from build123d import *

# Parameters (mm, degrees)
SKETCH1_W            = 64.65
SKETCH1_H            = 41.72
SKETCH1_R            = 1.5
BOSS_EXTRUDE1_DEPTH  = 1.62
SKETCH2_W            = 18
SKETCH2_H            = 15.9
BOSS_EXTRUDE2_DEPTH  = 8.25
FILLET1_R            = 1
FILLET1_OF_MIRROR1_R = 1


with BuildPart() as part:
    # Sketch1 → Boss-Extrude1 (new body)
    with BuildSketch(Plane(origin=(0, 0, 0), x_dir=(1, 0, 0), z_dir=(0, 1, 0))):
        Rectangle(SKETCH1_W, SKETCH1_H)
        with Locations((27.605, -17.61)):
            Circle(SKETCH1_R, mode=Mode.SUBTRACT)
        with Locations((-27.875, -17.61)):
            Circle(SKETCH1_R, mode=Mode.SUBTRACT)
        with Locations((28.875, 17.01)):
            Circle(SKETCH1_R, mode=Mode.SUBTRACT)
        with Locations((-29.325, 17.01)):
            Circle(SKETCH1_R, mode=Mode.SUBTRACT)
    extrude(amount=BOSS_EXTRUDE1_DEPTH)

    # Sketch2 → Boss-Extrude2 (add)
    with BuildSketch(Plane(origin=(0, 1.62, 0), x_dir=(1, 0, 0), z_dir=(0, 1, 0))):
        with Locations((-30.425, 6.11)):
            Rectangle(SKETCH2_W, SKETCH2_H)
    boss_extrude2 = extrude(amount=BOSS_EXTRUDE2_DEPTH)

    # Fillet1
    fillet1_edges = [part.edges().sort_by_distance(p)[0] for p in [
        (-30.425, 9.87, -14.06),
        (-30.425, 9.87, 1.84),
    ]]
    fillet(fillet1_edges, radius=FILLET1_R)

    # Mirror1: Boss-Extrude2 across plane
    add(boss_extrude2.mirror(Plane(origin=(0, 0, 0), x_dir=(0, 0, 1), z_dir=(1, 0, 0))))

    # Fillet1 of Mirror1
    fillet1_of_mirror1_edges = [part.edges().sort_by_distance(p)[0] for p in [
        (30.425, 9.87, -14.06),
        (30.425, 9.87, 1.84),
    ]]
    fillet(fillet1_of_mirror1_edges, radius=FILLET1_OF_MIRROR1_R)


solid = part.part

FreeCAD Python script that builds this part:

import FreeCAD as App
import Part
import Sketcher

V = App.Vector
Q = App.Units.Quantity


def edges_at(feature, points):
    """Names of the edges that pass closest to the given points."""
    edges = feature.Shape.Edges
    near = lambda p: min(range(len(edges)), key=lambda i: edges[i].distToShape(Part.Vertex(*p))[0])
    return sorted({f"Edge{near(p) + 1}" for p in points})

doc = App.newDocument("Part")
params = doc.addObject("Spreadsheet::Sheet", "Params")
for row, (alias, value) in enumerate([
    ("sketch1_diameter", "3 mm"),
    ("sketch1_width", "64.65 mm"),
    ("sketch1_height", "41.72 mm"),
    ("pad1_length", "1.62 mm"),
    ("sketch2_width", "18 mm"),
    ("sketch2_height", "15.9 mm"),
    ("pad2_length", "8.25 mm"),
    ("fillet_radius", "1 mm"),
    ("fillet2_radius", "1 mm"),
], start=1):
    params.set(f"A{row}", alias)
    params.set(f"B{row}", "=" + value)
    params.setAlias(f"B{row}", alias)

body = doc.addObject("PartDesign::Body", "Body")

sketch1 = body.newObject("Sketcher::SketchObject", "Sketch")
sketch1.AttachmentSupport = (doc.getObject("XZ_Plane"), [""])
sketch1.MapMode = "FlatFace"
sketch1.addGeometry([
    Part.LineSegment(V(-32.3, -20.9, 0), V(-32.3, 20.9, 0)),
    Part.LineSegment(V(-32.3, 20.9, 0), V(32.3, 20.9, 0)),
    Part.LineSegment(V(32.3, 20.9, 0), V(32.3, -20.9, 0)),
    Part.LineSegment(V(32.3, -20.9, 0), V(-32.3, -20.9, 0)),
    Part.Circle(V(-27.9, 17.6, 0), V(0, 0, 1), 1.5),
    Part.Circle(V(27.6, 17.6, 0), V(0, 0, 1), 1.5),
    Part.Circle(V(-29.3, -17, 0), V(0, 0, 1), 1.5),
    Part.Circle(V(28.9, -17, 0), V(0, 0, 1), 1.5),
], False)
sketch1.addConstraint([
    Sketcher.Constraint("Coincident", 0, 2, 1, 1),
    Sketcher.Constraint("Coincident", 1, 2, 2, 1),
    Sketcher.Constraint("Coincident", 2, 2, 3, 1),
    Sketcher.Constraint("Coincident", 3, 2, 0, 1),
    Sketcher.Constraint("Vertical", 0),
    Sketcher.Constraint("Horizontal", 1),
    Sketcher.Constraint("Vertical", 2),
    Sketcher.Constraint("Horizontal", 3),
    Sketcher.Constraint("Equal", 4, 5),
    Sketcher.Constraint("Equal", 5, 6),
    Sketcher.Constraint("Equal", 6, 7),
    Sketcher.Constraint("Symmetric", 0, 2, 2, 2, -1, 1),
    Sketcher.Constraint("Horizontal", 4, 3, 5, 3),
    Sketcher.Constraint("Horizontal", 6, 3, 7, 3),
    Sketcher.Constraint("Diameter", 4, Q("3 mm")),
    Sketcher.Constraint("DistanceX", 0, 2, 6, 3, Q("3 mm")),
    Sketcher.Constraint("DistanceX", 1, 1, 1, 2, Q("64.65 mm")),
    Sketcher.Constraint("DistanceY", 0, 1, 0, 2, Q("41.72 mm")),
    Sketcher.Constraint("DistanceX", 6, 3, 7, 3, Q("58.2 mm")),
    Sketcher.Constraint("DistanceX", 4, 3, 1, 2, Q("60.2 mm")),
    Sketcher.Constraint("DistanceY", -1, 1, 4, 3, Q("17.61 mm")),
    Sketcher.Constraint("DistanceY", 6, 3, -1, 1, Q("17.01 mm")),
    Sketcher.Constraint("DistanceX", 4, 3, 5, 3, Q("55.48 mm")),
])
sketch1.setExpression("Constraints[14]", "Params.sketch1_diameter")
sketch1.setExpression("Constraints[16]", "Params.sketch1_width")
sketch1.setExpression("Constraints[17]", "Params.sketch1_height")
pad1 = body.newObject("PartDesign::Pad", "Pad")
pad1.Profile = sketch1
pad1.setExpression("Length", "Params.pad1_length")
pad1.Reversed = True

sketch2 = body.newObject("Sketcher::SketchObject", "Sketch001")
sketch2.AttachmentSupport = (doc.getObject("XZ_Plane"), [""])
sketch2.MapMode = "FlatFace"
sketch2.AttachmentOffset = App.Placement(V(0, 0, -1.62), App.Rotation())
sketch2.addGeometry([
    Part.LineSegment(V(-39, -14, 0), V(-39, 2, 0)),
    Part.LineSegment(V(-39, 2, 0), V(-21, 2, 0)),
    Part.LineSegment(V(-21, 2, 0), V(-21, -14, 0)),
    Part.LineSegment(V(-21, -14, 0), V(-39, -14, 0)),
], False)
sketch2.addConstraint([
    Sketcher.Constraint("Coincident", 0, 2, 1, 1),
    Sketcher.Constraint("Coincident", 1, 2, 2, 1),
    Sketcher.Constraint("Coincident", 2, 2, 3, 1),
    Sketcher.Constraint("Coincident", 3, 2, 0, 1),
    Sketcher.Constraint("Vertical", 0),
    Sketcher.Constraint("Horizontal", 1),
    Sketcher.Constraint("Vertical", 2),
    Sketcher.Constraint("Horizontal", 3),
    Sketcher.Constraint("DistanceX", 1, 1, 1, 2, Q("18 mm")),
    Sketcher.Constraint("DistanceY", 0, 1, 0, 2, Q("15.9 mm")),
    Sketcher.Constraint("DistanceY", -1, 1, 0, 2, Q("1.84 mm")),
    Sketcher.Constraint("DistanceX", 0, 2, -1, 1, Q("39.425 mm")),
])
sketch2.setExpression("Constraints[8]", "Params.sketch2_width")
sketch2.setExpression("Constraints[9]", "Params.sketch2_height")
pad2 = body.newObject("PartDesign::Pad", "Pad001")
pad2.Profile = sketch2
pad2.setExpression("Length", "Params.pad2_length")
pad2.Reversed = True
doc.recompute()

fillet = body.newObject("PartDesign::Fillet", "Fillet")
fillet.Base = (pad2, edges_at(pad2, [(-30.425, 9.87, -14.06), (-30.425, 9.87, 1.84)]))
fillet.setExpression("Radius", "Params.fillet_radius")
doc.recompute()

mirrored = body.newObject("PartDesign::Mirrored", "Mirrored")
mirrored.Originals = [pad2]
mirrored.MirrorPlane = (doc.getObject("YZ_Plane"), [""])
body.Tip = mirrored
doc.recompute()

fillet2 = body.newObject("PartDesign::Fillet", "Fillet001")
fillet2.Base = (mirrored, edges_at(mirrored, [(30.425, 9.87, -14.06), (30.425, 9.87, 1.84)]))
fillet2.setExpression("Radius", "Params.fillet2_radius")

doc.recompute()
